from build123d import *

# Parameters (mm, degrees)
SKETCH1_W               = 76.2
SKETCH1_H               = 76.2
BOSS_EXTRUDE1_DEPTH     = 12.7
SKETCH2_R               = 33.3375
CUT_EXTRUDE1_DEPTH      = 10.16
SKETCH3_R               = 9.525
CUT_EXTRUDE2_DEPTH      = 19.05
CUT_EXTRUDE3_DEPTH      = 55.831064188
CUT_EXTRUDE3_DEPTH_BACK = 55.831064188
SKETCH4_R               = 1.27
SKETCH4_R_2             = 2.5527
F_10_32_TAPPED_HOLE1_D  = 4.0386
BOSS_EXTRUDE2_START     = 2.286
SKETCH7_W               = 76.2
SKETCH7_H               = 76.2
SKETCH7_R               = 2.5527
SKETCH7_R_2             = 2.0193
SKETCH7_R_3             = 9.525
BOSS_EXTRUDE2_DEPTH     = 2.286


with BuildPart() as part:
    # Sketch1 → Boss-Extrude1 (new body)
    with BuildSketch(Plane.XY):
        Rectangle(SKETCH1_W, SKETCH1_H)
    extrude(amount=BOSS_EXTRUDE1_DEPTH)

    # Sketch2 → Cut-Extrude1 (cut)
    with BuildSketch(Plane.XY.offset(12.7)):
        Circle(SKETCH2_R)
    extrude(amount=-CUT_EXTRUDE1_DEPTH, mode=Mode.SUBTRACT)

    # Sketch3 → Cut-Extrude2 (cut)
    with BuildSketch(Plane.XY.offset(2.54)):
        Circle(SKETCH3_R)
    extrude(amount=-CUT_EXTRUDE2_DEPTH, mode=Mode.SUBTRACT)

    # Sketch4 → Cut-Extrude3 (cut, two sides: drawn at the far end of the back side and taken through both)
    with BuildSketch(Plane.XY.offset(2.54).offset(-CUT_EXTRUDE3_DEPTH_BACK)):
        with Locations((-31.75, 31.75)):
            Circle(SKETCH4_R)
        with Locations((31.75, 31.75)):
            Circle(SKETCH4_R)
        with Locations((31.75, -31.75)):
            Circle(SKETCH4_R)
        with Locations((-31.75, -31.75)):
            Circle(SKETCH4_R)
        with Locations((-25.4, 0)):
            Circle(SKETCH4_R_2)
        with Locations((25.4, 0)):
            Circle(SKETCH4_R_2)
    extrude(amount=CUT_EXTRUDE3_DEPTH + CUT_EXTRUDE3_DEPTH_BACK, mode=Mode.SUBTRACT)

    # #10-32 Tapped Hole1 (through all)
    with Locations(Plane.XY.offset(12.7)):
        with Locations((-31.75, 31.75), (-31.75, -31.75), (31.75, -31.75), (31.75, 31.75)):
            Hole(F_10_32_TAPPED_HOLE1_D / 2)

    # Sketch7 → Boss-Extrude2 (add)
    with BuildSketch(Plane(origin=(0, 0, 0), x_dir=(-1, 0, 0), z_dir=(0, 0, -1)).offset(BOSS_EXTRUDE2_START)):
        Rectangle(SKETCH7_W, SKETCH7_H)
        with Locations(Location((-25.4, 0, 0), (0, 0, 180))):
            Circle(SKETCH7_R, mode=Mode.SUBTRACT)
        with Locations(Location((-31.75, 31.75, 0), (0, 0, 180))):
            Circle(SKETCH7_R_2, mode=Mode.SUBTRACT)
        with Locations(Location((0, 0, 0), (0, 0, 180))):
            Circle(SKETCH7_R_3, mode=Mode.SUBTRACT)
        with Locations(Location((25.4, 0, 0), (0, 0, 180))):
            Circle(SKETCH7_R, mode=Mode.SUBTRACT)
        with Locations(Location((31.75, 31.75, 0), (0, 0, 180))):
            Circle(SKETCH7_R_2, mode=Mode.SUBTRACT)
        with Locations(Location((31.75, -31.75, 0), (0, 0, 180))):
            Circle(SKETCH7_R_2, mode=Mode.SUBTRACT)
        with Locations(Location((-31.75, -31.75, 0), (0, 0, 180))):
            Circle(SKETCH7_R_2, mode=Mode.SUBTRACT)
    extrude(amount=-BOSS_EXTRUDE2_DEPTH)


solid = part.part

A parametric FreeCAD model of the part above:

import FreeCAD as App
import Part
import Sketcher
Q = App.Units.Quantity

doc = App.newDocument("Part")
body = doc.addObject("PartDesign::Body", "Body")

sketch1 = body.newObject("Sketcher::SketchObject", "Sketch")
sketch1.AttachmentSupport = (doc.getObject("XY_Plane"), [""])
sketch1.MapMode = "FlatFace"
sketch1.addGeometry(Part.LineSegment(App.Vector(-38, 38, 0), App.Vector(-38, -38, 0)), False)
sketch1.addGeometry(Part.LineSegment(App.Vector(-38, -38, 0), App.Vector(38, -38, 0)), False)
sketch1.addGeometry(Part.LineSegment(App.Vector(38, -38, 0), App.Vector(38, 38, 0)), False)
sketch1.addGeometry(Part.LineSegment(App.Vector(38, 38, 0), App.Vector(-38, 38, 0)), False)
sketch1.addConstraint(Sketcher.Constraint("Coincident", 0, 2, 1, 1))
sketch1.addConstraint(Sketcher.Constraint("Coincident", 1, 2, 2, 1))
sketch1.addConstraint(Sketcher.Constraint("Coincident", 2, 2, 3, 1))
sketch1.addConstraint(Sketcher.Constraint("Coincident", 3, 2, 0, 1))
sketch1.addConstraint(Sketcher.Constraint("Vertical", 0))
sketch1.addConstraint(Sketcher.Constraint("Horizontal", 1))
sketch1.addConstraint(Sketcher.Constraint("Vertical", 2))
sketch1.addConstraint(Sketcher.Constraint("Horizontal", 3))
sketch1.addConstraint(Sketcher.Constraint("Symmetric", 0, 2, 2, 2, -1, 1))
sketch1.addConstraint(Sketcher.Constraint("Equal", 3, 0))
sketch1.addConstraint(Sketcher.Constraint("DistanceX", 1, 1, 1, 2, Q("3 in")))
pad1 = body.newObject("PartDesign::Pad", "Pad")
pad1.Profile = sketch1
pad1.Length = Q("0.5 in")

sketch2 = body.newObject("Sketcher::SketchObject", "Sketch001")
sketch2.AttachmentSupport = (doc.getObject("XY_Plane"), [""])
sketch2.MapMode = "FlatFace"
sketch2.AttachmentOffset = App.Placement(App.Vector(0, 0, 0.5 * 25.4), App.Rotation())
sketch2.addGeometry(Part.Circle(App.Vector(0, 0, 0), App.Vector(0, 0, 1), 33), False)
sketch2.addConstraint(Sketcher.Constraint("Coincident", 0, 3, -1, 1))
sketch2.addConstraint(Sketcher.Constraint("Diameter", 0, Q("2.625 in")))
pocket1 = body.newObject("PartDesign::Pocket", "Pocket")
pocket1.Profile = sketch2
pocket1.Length = Q("0.4 in")

sketch3 = body.newObject("Sketcher::SketchObject", "Sketch002")
sketch3.AttachmentSupport = (doc.getObject("XY_Plane"), [""])
sketch3.MapMode = "FlatFace"
sketch3.AttachmentOffset = App.Placement(App.Vector(0, 0, 0.1 * 25.4), App.Rotation())
sketch3.addGeometry(Part.Circle(App.Vector(0, 0, 0), App.Vector(0, 0, 1), 10), False)
sketch3.addConstraint(Sketcher.Constraint("Coincident", 0, 3, -1, 1))
sketch3.addConstraint(Sketcher.Constraint("Diameter", 0, Q("0.75 in")))
pocket2 = body.newObject("PartDesign::Pocket", "Pocket001")
pocket2.Profile = sketch3
pocket2.Length = Q("0.75 in")

sketch4 = body.newObject("Sketcher::SketchObject", "Sketch003")
sketch4.AttachmentSupport = (doc.getObject("XY_Plane"), [""])
sketch4.MapMode = "FlatFace"
sketch4.AttachmentOffset = App.Placement(App.Vector(0, 0, 0.1 * 25.4), App.Rotation())
sketch4.addGeometry(Part.Circle(App.Vector(-31.8, 31.8, 0), App.Vector(0, 0, 1), 1.3), False)
sketch4.addGeometry(Part.Circle(App.Vector(31.8, 31.8, 0), App.Vector(0, 0, 1), 1.3), False)
sketch4.addGeometry(Part.Circle(App.Vector(31.8, -31.8, 0), App.Vector(0, 0, 1), 1.3), False)
sketch4.addGeometry(Part.Circle(App.Vector(-31.8, -31.8, 0), App.Vector(0, 0, 1), 1.3), False)
sketch4.addGeometry(Part.Circle(App.Vector(-25.4, 0, 0), App.Vector(0, 0, 1), 2.6), False)
sketch4.addGeometry(Part.Circle(App.Vector(25.4, 0, 0), App.Vector(0, 0, 1), 2.6), False)
sketch4.addConstraint(Sketcher.Constraint("Equal", 0, 1))
sketch4.addConstraint(Sketcher.Constraint("Equal", 1, 2))
sketch4.addConstraint(Sketcher.Constraint("Equal", 2, 3))
sketch4.addConstraint(Sketcher.Constraint("Equal", 4, 5))
sketch4.addConstraint(Sketcher.Constraint("Symmetric", 0, 3, 2, 3, -1, 1))
sketch4.addConstraint(Sketcher.Constraint("Symmetric", 1, 3, 3, 3, -1, 1))
sketch4.addConstraint(Sketcher.Constraint("Symmetric", 4, 3, 5, 3, -1, 1))
sketch4.addConstraint(Sketcher.Constraint("Symmetric", 0, 3, 1, 3, -2))
sketch4.addConstraint(Sketcher.Constraint("PointOnObject", 4, 3, -1))
sketch4.addConstraint(Sketcher.Constraint("Diameter", 0, Q("0.1 in")))
sketch4.addConstraint(Sketcher.Constraint("Diameter", 4, Q("0.201 in")))
sketch4.addConstraint(Sketcher.Constraint("DistanceX", 4, 3, -1, 1, Q("1 in")))
sketch4.addConstraint(Sketcher.Constraint("DistanceX", 0, 3, 1, 3, Q("2.5 in")))
sketch4.addConstraint(Sketcher.Constraint("DistanceY", 2, 3, 1, 3, Q("2.5 in")))
pocket3 = body.newObject("PartDesign::Pocket", "Pocket002")
pocket3.Profile = sketch4
pocket3.Type = "ThroughAll"
pocket3.Midplane = True

sketch5 = body.newObject("Sketcher::SketchObject", "Sketch004")
sketch5.AttachmentSupport = (doc.getObject("XY_Plane"), [""])
sketch5.MapMode = "FlatFace"
sketch5.AttachmentOffset = App.Placement(App.Vector(0, 0, 0.5 * 25.4), App.Rotation())
sketch5.addGeometry(Part.Circle(App.Vector(-31.8, 31.8, 0), App.Vector(0, 0, 1), 2), False)
sketch5.addGeometry(Part.Circle(App.Vector(-31.8, -31.8, 0), App.Vector(0, 0, 1), 2), False)
sketch5.addGeometry(Part.Circle(App.Vector(31.8, -31.8, 0), App.Vector(0, 0, 1), 2), False)
sketch5.addGeometry(Part.Circle(App.Vector(31.8, 31.8, 0), App.Vector(0, 0, 1), 2), False)
sketch5.addConstraint(Sketcher.Constraint("Equal", 0, 1))
sketch5.addConstraint(Sketcher.Constraint("Equal", 1, 2))
sketch5.addConstraint(Sketcher.Constraint("Equal", 2, 3))
sketch5.addConstraint(Sketcher.Constraint("Symmetric", 0, 3, 2, 3, -1, 1))
sketch5.addConstraint(Sketcher.Constraint("Symmetric", 1, 3, 3, 3, -1, 1))
sketch5.addConstraint(Sketcher.Constraint("Symmetric", 1, 3, 2, 3, -2))
sketch5.addConstraint(Sketcher.Constraint("Diameter", 0, Q("0.159 in")))
sketch5.addConstraint(Sketcher.Constraint("DistanceY", 1, 3, 0, 3, Q("2.5 in")))
sketch5.addConstraint(Sketcher.Constraint("DistanceX", 1, 3, 2, 3, Q("2.5 in")))
doc.recompute()
hole = body.newObject("PartDesign::Hole", "Hole")
hole.Profile = sketch5
hole.ThreadType = "None"
hole.Diameter = Q("0.159 in")
hole.DepthType = "ThroughAll"

sketch6 = body.newObject("Sketcher::SketchObject", "Sketch005")
sketch6.AttachmentSupport = (doc.getObject("XY_Plane"), [""])
sketch6.MapMode = "FlatFace"
sketch6.AttachmentOffset = App.Placement(App.Vector(0, 0, -0.09 * 25.4), App.Rotation())
sketch6.addGeometry(Part.LineSegment(App.Vector(38.1, 38.1, 0), App.Vector(38.1, -38.1, 0)), False)
sketch6.addGeometry(Part.LineSegment(App.Vector(38.1, -38.1, 0), App.Vector(-38.1, -38.1, 0)), False)
sketch6.addGeometry(Part.LineSegment(App.Vector(-38.1, -38.1, 0), App.Vector(-38.1, 38.1, 0)), False)
sketch6.addGeometry(Part.LineSegment(App.Vector(-38.1, 38.1, 0), App.Vector(38.1, 38.1, 0)), False)
sketch6.addGeometry(Part.Circle(App.Vector(31.8, -31.8, 0), App.Vector(0, 0, 1), 2), False)
sketch6.addGeometry(Part.Circle(App.Vector(-31.8, -31.8, 0), App.Vector(0, 0, 1), 2), False)
sketch6.addGeometry(Part.Circle(App.Vector(25.4, 0, 0), App.Vector(0, 0, 1), 2.6), False)
sketch6.addGeometry(Part.Circle(App.Vector(31.8, 31.8, 0), App.Vector(0, 0, 1), 2), False)
sketch6.addGeometry(Part.Circle(App.Vector(0, 0, 0), App.Vector(0, 0, 1), 9.5), False)
sketch6.addGeometry(Part.Circle(App.Vector(-25.4, 0, 0), App.Vector(0, 0, 1), 2.6), False)
sketch6.addGeometry(Part.Circle(App.Vector(-31.8, 31.8, 0), App.Vector(0, 0, 1), 2), False)
sketch6.addConstraint(Sketcher.Constraint("Coincident", 0, 2, 1, 1))
sketch6.addConstraint(Sketcher.Constraint("Coincident", 1, 2, 2, 1))
sketch6.addConstraint(Sketcher.Constraint("Coincident", 2, 2, 3, 1))
sketch6.addConstraint(Sketcher.Constraint("Coincident", 3, 2, 0, 1))
sketch6.addConstraint(Sketcher.Constraint("Vertical", 0))
sketch6.addConstraint(Sketcher.Constraint("Horizontal", 1))
sketch6.addConstraint(Sketcher.Constraint("Vertical", 2))
sketch6.addConstraint(Sketcher.Constraint("Horizontal", 3))
sketch6.addConstraint(Sketcher.Constraint("Coincident", 8, 3, -1, 1))
sketch6.addConstraint(Sketcher.Constraint("Equal", 4, 5))
sketch6.addConstraint(Sketcher.Constraint("Equal", 5, 7))
sketch6.addConstraint(Sketcher.Constraint("Equal", 6, 9))
sketch6.addConstraint(Sketcher.Constraint("Equal", 7, 10))
sketch6.addConstraint(Sketcher.Constraint("Symmetric", 5, 3, 7, 3, -1, 1))
sketch6.addConstraint(Sketcher.Constraint("Symmetric", 6, 3, 9, 3, -1, 1))
sketch6.addConstraint(Sketcher.Constraint("Symmetric", 4, 3, 10, 3, -1, 1))
sketch6.addConstraint(Sketcher.Constraint("Symmetric", 0, 2, 2, 2, -1, 1))
sketch6.addConstraint(Sketcher.Constraint("Symmetric", 4, 3, 5, 3, -2))
sketch6.addConstraint(Sketcher.Constraint("PointOnObject", 6, 3, -1))
sketch6.addConstraint(Sketcher.Constraint("Equal", 3, 0))
sketch6.addConstraint(Sketcher.Constraint("Diameter", 8, Q("0.75 in")))
sketch6.addConstraint(Sketcher.Constraint("DistanceX", 1, 2, 1, 1, Q("3 in")))
sketch6.addConstraint(Sketcher.Constraint("Diameter", 4, Q("0.159 in")))
sketch6.addConstraint(Sketcher.Constraint("Diameter", 6, Q("0.201 in")))
sketch6.addConstraint(Sketcher.Constraint("DistanceX", -1, 1, 6, 3, Q("1 in")))
sketch6.addConstraint(Sketcher.Constraint("DistanceX", 5, 3, 4, 3, Q("2.5 in")))
sketch6.addConstraint(Sketcher.Constraint("DistanceY", 4, 3, 7, 3, Q("2.5 in")))
pad2 = body.newObject("PartDesign::Pad", "Pad001")
pad2.Profile = sketch6
pad2.Length = Q("0.09 in")

doc.recompute()
